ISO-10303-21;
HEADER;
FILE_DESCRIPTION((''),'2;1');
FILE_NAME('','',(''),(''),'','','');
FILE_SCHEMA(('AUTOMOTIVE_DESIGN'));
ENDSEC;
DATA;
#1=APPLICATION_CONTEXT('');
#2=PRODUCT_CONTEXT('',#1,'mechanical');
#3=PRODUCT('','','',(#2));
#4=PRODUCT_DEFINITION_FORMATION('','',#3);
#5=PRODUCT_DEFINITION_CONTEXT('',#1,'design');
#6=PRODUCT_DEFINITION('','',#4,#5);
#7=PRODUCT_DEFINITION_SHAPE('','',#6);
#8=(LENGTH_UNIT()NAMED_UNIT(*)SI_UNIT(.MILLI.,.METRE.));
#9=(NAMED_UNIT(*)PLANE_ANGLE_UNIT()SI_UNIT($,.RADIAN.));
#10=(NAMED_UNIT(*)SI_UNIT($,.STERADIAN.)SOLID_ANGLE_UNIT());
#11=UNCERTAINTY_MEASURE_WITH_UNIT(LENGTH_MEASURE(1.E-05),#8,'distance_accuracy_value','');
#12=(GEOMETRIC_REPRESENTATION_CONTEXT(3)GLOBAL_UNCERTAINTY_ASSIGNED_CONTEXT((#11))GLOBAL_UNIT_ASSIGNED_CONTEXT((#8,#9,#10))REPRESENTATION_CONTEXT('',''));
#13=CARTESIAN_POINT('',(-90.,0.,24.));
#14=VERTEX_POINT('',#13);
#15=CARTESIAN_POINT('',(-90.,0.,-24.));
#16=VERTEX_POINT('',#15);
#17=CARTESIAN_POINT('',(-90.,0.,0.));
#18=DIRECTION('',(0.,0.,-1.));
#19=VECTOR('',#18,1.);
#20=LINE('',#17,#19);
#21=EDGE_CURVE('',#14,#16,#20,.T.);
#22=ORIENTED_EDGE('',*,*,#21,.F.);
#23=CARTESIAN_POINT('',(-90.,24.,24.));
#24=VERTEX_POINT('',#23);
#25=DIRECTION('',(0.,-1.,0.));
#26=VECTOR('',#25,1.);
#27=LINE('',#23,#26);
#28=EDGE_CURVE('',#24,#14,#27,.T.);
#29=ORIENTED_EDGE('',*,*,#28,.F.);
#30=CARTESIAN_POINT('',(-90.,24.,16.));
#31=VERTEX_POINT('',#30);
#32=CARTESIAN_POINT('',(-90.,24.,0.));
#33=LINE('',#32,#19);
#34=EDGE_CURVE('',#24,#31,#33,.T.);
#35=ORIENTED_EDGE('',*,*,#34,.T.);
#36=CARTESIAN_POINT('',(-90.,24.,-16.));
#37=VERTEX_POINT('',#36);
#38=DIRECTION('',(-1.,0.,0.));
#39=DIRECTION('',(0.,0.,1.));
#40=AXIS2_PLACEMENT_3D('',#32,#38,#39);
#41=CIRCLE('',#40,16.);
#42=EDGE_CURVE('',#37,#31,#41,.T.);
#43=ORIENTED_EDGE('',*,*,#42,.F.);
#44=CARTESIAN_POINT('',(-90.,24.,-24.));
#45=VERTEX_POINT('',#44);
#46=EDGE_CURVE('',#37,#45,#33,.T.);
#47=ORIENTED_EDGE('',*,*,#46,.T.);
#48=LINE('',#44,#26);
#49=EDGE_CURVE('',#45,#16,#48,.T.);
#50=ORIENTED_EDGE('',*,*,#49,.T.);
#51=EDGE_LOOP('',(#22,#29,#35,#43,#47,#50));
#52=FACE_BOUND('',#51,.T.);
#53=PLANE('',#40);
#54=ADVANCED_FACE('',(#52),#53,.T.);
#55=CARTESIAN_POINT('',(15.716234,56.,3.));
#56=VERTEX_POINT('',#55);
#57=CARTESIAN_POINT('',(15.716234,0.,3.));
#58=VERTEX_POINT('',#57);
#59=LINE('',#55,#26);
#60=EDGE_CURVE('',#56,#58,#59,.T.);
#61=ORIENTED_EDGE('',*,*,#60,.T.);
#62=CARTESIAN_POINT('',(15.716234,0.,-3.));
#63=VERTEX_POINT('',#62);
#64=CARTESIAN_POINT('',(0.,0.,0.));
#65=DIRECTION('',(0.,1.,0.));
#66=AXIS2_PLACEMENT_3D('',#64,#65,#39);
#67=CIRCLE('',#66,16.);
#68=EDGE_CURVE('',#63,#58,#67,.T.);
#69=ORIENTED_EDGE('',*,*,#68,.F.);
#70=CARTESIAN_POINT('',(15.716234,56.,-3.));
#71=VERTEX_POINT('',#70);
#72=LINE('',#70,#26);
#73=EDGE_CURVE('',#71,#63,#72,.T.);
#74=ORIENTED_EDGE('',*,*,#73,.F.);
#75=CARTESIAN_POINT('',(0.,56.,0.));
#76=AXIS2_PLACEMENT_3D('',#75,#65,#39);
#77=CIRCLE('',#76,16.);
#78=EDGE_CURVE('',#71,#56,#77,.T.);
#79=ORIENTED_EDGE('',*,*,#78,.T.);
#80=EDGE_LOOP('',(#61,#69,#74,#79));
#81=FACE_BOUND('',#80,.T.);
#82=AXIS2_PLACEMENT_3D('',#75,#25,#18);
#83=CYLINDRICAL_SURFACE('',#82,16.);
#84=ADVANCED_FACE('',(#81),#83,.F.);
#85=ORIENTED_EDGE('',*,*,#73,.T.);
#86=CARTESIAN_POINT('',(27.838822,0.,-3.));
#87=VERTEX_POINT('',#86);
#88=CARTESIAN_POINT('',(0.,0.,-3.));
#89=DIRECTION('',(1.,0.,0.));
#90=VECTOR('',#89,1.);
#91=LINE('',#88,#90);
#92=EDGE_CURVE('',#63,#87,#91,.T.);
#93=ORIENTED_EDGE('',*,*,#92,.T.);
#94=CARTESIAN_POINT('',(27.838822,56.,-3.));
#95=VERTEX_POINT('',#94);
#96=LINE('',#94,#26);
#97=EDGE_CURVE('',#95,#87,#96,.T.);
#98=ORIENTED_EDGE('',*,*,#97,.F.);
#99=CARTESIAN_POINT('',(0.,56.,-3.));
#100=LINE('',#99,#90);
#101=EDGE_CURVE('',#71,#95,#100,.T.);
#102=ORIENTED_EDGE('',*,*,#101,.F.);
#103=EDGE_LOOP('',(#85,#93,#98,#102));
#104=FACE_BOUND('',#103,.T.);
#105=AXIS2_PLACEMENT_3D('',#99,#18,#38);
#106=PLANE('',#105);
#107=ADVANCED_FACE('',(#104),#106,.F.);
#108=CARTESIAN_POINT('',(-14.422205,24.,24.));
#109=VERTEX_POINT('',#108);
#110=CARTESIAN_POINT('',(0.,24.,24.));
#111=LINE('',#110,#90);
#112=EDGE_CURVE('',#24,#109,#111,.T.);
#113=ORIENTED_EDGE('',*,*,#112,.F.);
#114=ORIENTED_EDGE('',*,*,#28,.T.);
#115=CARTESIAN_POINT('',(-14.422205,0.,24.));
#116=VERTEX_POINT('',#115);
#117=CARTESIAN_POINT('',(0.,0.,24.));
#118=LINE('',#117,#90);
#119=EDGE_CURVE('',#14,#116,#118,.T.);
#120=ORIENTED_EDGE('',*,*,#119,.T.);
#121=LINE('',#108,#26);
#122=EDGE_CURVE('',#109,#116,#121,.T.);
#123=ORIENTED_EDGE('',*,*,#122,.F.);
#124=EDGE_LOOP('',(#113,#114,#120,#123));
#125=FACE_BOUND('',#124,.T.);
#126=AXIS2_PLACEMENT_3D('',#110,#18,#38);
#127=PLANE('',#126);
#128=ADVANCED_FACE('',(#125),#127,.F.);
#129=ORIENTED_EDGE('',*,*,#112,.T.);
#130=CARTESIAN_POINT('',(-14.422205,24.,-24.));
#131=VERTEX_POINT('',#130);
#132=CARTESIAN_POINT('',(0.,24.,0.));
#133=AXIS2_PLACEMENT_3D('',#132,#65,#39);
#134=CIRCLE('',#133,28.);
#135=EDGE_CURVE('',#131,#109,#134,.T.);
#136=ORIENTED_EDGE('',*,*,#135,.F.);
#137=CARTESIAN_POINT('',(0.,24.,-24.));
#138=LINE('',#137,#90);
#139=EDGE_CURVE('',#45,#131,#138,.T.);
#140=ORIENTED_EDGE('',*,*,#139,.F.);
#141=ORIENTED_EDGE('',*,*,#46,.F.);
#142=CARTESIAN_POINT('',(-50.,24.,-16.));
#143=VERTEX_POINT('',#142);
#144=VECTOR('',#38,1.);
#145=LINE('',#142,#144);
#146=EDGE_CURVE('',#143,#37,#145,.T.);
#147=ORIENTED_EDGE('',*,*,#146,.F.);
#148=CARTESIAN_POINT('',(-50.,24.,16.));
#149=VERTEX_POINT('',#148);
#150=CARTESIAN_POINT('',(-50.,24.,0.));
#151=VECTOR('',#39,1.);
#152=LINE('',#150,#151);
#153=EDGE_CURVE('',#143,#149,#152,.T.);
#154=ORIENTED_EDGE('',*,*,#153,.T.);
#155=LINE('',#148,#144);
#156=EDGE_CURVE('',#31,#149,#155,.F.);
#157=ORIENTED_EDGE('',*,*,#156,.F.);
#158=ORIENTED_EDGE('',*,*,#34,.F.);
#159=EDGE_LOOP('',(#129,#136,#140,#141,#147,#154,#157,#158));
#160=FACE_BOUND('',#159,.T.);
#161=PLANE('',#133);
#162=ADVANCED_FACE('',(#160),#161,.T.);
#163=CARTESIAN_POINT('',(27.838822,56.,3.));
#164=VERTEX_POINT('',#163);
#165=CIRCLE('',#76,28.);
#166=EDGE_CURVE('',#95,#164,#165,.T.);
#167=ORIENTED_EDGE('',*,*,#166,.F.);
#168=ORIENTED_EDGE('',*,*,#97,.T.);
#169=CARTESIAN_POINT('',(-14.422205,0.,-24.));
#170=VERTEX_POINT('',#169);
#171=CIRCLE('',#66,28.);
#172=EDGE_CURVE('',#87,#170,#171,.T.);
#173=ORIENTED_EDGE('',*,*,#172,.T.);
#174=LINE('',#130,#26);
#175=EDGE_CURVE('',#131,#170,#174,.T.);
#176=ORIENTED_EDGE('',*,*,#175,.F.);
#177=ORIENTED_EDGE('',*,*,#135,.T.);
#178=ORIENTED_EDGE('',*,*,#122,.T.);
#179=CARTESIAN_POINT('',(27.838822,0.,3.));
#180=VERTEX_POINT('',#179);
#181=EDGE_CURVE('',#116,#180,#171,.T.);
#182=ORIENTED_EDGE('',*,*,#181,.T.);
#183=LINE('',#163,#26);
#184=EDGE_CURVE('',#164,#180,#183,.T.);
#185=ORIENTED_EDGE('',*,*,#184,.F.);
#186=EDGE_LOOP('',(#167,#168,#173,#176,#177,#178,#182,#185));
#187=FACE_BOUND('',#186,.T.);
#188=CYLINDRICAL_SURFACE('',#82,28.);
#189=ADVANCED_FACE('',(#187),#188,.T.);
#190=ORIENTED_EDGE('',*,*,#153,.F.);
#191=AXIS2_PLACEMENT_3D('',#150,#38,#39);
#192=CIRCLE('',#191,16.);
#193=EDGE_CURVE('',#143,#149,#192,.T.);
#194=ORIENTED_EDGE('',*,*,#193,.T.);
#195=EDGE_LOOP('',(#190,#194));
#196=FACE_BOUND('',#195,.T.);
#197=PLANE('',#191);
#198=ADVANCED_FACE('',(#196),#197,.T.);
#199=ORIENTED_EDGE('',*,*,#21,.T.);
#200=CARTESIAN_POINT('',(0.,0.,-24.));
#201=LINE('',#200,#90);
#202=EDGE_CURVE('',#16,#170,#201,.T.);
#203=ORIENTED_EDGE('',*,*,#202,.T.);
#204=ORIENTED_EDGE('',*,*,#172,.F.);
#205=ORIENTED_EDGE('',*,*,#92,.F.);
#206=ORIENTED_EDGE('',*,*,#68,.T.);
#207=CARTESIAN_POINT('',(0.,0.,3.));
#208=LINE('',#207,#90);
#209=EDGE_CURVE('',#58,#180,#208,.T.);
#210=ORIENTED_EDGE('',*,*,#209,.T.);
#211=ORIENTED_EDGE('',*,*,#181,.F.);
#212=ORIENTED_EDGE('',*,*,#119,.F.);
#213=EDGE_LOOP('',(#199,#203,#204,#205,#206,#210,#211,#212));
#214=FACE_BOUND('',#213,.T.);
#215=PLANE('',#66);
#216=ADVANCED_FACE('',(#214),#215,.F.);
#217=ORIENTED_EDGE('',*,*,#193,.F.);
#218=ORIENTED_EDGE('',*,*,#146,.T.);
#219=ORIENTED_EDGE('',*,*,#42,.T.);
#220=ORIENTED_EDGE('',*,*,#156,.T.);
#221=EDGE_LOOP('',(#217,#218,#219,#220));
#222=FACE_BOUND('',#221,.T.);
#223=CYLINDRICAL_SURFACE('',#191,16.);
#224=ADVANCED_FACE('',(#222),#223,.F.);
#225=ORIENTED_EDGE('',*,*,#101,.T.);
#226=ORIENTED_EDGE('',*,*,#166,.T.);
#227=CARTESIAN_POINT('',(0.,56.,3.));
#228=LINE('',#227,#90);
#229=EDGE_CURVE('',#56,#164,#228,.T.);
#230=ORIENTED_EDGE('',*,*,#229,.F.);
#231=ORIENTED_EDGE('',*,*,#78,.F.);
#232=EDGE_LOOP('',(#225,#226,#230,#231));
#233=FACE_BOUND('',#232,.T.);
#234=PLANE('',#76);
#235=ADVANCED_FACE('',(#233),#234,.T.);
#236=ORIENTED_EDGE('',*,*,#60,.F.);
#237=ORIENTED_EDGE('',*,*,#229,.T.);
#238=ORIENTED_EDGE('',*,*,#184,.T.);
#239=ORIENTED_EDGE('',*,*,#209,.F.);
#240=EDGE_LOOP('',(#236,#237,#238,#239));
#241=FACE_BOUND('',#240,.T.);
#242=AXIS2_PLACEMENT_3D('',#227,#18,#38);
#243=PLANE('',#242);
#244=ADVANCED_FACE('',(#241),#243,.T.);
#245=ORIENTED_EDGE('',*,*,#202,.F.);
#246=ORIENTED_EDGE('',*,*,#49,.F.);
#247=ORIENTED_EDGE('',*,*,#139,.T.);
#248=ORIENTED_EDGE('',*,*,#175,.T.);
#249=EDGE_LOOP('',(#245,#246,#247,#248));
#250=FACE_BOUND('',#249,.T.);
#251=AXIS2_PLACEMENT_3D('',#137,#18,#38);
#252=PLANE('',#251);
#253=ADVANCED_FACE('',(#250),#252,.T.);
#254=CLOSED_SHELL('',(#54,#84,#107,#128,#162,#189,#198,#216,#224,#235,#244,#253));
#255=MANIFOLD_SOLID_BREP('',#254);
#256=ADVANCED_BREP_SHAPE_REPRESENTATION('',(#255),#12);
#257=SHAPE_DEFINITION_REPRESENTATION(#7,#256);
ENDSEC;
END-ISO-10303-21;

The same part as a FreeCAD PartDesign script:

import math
import FreeCAD as App
import Part
import Sketcher

doc = App.newDocument("Part")
params = doc.addObject("Spreadsheet::Sheet", "Params")
for row, (alias, value) in enumerate([
    ("sketch1_radius", "16 mm"),
    ("sketch1_radius2", "28 mm"),
    ("pad1_length", "56 mm"),
    ("sketch2_radius", "28 mm"),
    ("sketch2_height", "48 mm"),
    ("pad2_length", "24 mm"),
    ("sketch3_diameter", "32 mm"),
    ("pocket1_length", "40 mm"),
], start=1):
    params.set(f"A{row}", alias)
    params.set(f"B{row}", "=" + value)
    params.setAlias(f"B{row}", alias)

body = doc.addObject("PartDesign::Body", "Body")

# Sketch on XZ plane
sketch1 = body.newObject("Sketcher::SketchObject", "Sketch")
sketch1.AttachmentSupport = (doc.getObject("XZ_Plane"), [""])
sketch1.MapMode = "FlatFace"
sketch1.addGeometry([
    Part.LineSegment(App.Vector(27.838822, 3, 0), App.Vector(15.716234, 3, 0)),
    Part.ArcOfCircle(Part.Circle(App.Vector(0, 0, 0), App.Vector(0, 0, 1), 16), math.radians(10.806923), math.radians(349.193077)),
    Part.LineSegment(App.Vector(15.716234, -3, 0), App.Vector(27.838822, -3, 0)),
    Part.ArcOfCircle(Part.Circle(App.Vector(0, 0, 0), App.Vector(0, 0, 1), 28), math.radians(6.15064), math.radians(353.84936)),
], False)
sketch1.addConstraint([
    Sketcher.Constraint("Coincident", 0, 2, 1, 1),
    Sketcher.Constraint("Coincident", 1, 2, 2, 1),
    Sketcher.Constraint("Coincident", 2, 2, 3, 2),
    Sketcher.Constraint("Coincident", 3, 1, 0, 1),
    Sketcher.Constraint("Horizontal", 0),
    Sketcher.Constraint("Horizontal", 2),
    Sketcher.Constraint("Coincident", 1, 3, -1, 1),
    Sketcher.Constraint("Coincident", 3, 3, -1, 1),
    Sketcher.Constraint("Vertical", 0, 2, 1, 2),
    Sketcher.Constraint("Radius", 1, 16.0),
    Sketcher.Constraint("Radius", 3, 28.0),
    Sketcher.Constraint("DistanceY", -1, 1, 0, 2, 3.0),
])
sketch1.setExpression("Constraints[9]", "Params.sketch1_radius")
sketch1.setExpression("Constraints[10]", "Params.sketch1_radius2")
pad1 = body.newObject("PartDesign::Pad", "Pad")
pad1.Profile = sketch1
pad1.setExpression("Length", "Params.pad1_length")
pad1.Reversed = True

# Sketch on XZ plane
sketch2 = body.newObject("Sketcher::SketchObject", "Sketch001")
sketch2.AttachmentSupport = (doc.getObject("XZ_Plane"), [""])
sketch2.MapMode = "FlatFace"
sketch2.addGeometry([
    Part.LineSegment(App.Vector(-90, -24, 0), App.Vector(-90, 24, 0)),
    Part.LineSegment(App.Vector(-90, 24, 0), App.Vector(-14.422205, 24, 0)),
    Part.ArcOfCircle(Part.Circle(App.Vector(0, 0, 0), App.Vector(0, 0, 1), 28), math.radians(121.002719), math.radians(238.997281)),
    Part.LineSegment(App.Vector(-14.422205, -24, 0), App.Vector(-90, -24, 0)),
], False)
sketch2.addConstraint([
    Sketcher.Constraint("Coincident", 0, 2, 1, 1),
    Sketcher.Constraint("Coincident", 1, 2, 2, 1),
    Sketcher.Constraint("Coincident", 2, 2, 3, 1),
    Sketcher.Constraint("Coincident", 3, 2, 0, 1),
    Sketcher.Constraint("Vertical", 0),
    Sketcher.Constraint("Horizontal", 1),
    Sketcher.Constraint("Horizontal", 3),
    Sketcher.Constraint("Coincident", 2, 3, -1, 1),
    Sketcher.Constraint("Vertical", 1, 2, 2, 2),
    Sketcher.Constraint("Radius", 2, 28.0),
    Sketcher.Constraint("DistanceY", 0, 1, 0, 2, 48.0),
    Sketcher.Constraint("DistanceX", 0, 2, -1, 1, 90.0),
])
sketch2.setExpression("Constraints[9]", "Params.sketch2_radius")
sketch2.setExpression("Constraints[10]", "Params.sketch2_height")
pad2 = body.newObject("PartDesign::Pad", "Pad001")
pad2.Profile = sketch2
pad2.setExpression("Length", "Params.pad2_length")
pad2.Reversed = True

# Sketch on YZ plane
sketch3 = body.newObject("Sketcher::SketchObject", "Sketch002")
sketch3.AttachmentSupport = (doc.getObject("YZ_Plane"), [""])
sketch3.MapMode = "FlatFace"
sketch3.AttachmentOffset = App.Placement(App.Vector(0, 0, -90), App.Rotation())
sketch3.addGeometry(Part.Circle(App.Vector(24, 0, 0), App.Vector(0, 0, 1), 16), False)
sketch3.addConstraint([
    Sketcher.Constraint("PointOnObject", 0, 3, -1),
    Sketcher.Constraint("Diameter", 0, 32.0),
    Sketcher.Constraint("DistanceX", -1, 1, 0, 3, 24.0),
])
sketch3.setExpression("Constraints[1]", "Params.sketch3_diameter")
pocket1 = body.newObject("PartDesign::Pocket", "Pocket")
pocket1.Profile = sketch3
pocket1.setExpression("Length", "Params.pocket1_length")
pocket1.Reversed = True

doc.recompute()
